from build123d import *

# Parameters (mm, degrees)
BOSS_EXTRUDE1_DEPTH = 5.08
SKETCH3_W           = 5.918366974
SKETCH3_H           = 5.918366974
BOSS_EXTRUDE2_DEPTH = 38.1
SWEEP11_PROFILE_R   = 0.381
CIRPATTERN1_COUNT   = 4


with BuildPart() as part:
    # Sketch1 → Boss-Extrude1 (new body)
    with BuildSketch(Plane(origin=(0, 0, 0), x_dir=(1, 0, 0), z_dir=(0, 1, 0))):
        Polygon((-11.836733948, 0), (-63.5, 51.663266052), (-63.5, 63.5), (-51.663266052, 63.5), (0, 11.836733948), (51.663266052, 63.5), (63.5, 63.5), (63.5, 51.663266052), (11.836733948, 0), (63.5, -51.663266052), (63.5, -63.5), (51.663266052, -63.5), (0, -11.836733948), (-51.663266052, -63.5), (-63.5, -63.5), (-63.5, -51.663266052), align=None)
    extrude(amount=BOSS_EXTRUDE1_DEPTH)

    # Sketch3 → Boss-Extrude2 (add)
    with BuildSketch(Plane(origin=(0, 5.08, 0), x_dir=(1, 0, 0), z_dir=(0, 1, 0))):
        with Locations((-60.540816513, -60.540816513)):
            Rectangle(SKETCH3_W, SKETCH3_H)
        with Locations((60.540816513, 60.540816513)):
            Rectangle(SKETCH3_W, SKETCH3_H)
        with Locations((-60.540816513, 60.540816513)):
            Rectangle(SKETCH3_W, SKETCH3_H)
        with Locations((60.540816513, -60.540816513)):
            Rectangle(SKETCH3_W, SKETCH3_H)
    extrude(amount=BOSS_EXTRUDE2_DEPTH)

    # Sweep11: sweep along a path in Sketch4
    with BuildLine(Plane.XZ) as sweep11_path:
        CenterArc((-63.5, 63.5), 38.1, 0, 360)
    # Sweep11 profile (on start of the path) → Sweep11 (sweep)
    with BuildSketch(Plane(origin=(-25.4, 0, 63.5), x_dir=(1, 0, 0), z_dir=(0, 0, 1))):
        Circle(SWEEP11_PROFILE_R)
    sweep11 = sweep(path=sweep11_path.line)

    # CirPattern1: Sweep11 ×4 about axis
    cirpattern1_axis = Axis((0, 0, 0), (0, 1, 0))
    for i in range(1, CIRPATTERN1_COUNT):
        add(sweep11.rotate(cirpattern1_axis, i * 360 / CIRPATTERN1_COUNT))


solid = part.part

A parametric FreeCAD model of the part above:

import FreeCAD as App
import Part
import Sketcher

V = App.Vector
Q = App.Units.Quantity


def add_polygon(sketch, points):
    """Adds a closed chain of lines whose ends are joined by coincident constraints."""
    first, n = sketch.GeometryCount, len(points)
    for a, b in zip(points, points[1:] + points[:1]):
        sketch.addGeometry(Part.LineSegment(App.Vector(*a, 0), App.Vector(*b, 0)), False)
    for i in range(n):
        sketch.addConstraint(Sketcher.Constraint("Coincident", first + i, 2, first + (i + 1) % n, 1))

doc = App.newDocument("Part")
body = doc.addObject("PartDesign::Body", "Body")

sketch1 = doc.addObject("Sketcher::SketchObject", "Sketch")
body.addObject(sketch1)
sketch1.AttachmentSupport = (doc.XZ_Plane, [""])
sketch1.MapMode = "FlatFace"
add_polygon(sketch1, [(-64, -52), (-12, 0), (-64, 52), (-64, 64), (-52, 64), (0, 12), (52, 64), (64, 64), (64, 52), (12, 0), (64, -52), (64, -64), (52, -64), (0, -12), (-52, -64), (-64, -64)])
sketch1.addConstraint([
    Sketcher.Constraint("Vertical", 2),
    Sketcher.Constraint("Horizontal", 3),
    Sketcher.Constraint("Horizontal", 6),
    Sketcher.Constraint("Vertical", 7),
    Sketcher.Constraint("Vertical", 10),
    Sketcher.Constraint("Horizontal", 11),
    Sketcher.Constraint("Horizontal", 14),
    Sketcher.Constraint("Vertical", 15),
    Sketcher.Constraint("Symmetric", 0, 2, 8, 2, -1, 1),
    Sketcher.Constraint("Symmetric", 1, 2, 9, 2, -1, 1),
    Sketcher.Constraint("Symmetric", 3, 2, 11, 2, -1, 1),
    Sketcher.Constraint("Symmetric", 4, 2, 12, 2, -1, 1),
    Sketcher.Constraint("Symmetric", 5, 2, 13, 2, -1, 1),
    Sketcher.Constraint("Symmetric", 7, 2, 15, 2, -1, 1),
    Sketcher.Constraint("Symmetric", 3, 2, 5, 2, -2),
    Sketcher.Constraint("Symmetric", 1, 2, 7, 2, -2),
    Sketcher.Constraint("PointOnObject", 0, 2, -1),
    Sketcher.Constraint("PointOnObject", 4, 2, -2),
    Sketcher.Constraint("Perpendicular", 0, 1),
    Sketcher.Constraint("Parallel", 1, 4),
    Sketcher.Constraint("Equal", 14, 2),
    Sketcher.Constraint("Equal", 1, 4),
    Sketcher.Constraint("DistanceX", 2, 2, 6, 2, Q("5 in")),
    Sketcher.Constraint("Distance", 0, Q("73.062892 mm")),
])
pad1 = doc.addObject("PartDesign::Pad", "Pad")
body.addObject(pad1)
pad1.Profile = sketch1
pad1.Length = Q("0.2 in")
pad1.Reversed = True

sketch2 = doc.addObject("Sketcher::SketchObject", "Sketch001")
body.addObject(sketch2)
sketch2.AttachmentSupport = (doc.XZ_Plane, [""])
sketch2.MapMode = "FlatFace"
sketch2.AttachmentOffset = App.Placement(V(0, 0, -0.2 * 25.4), App.Rotation())
add_polygon(sketch2, [(-64, 58), (-64, 64), (-58, 64), (-58, 58)])
add_polygon(sketch2, [(58, -64), (58, -58), (64, -58), (64, -64)])
add_polygon(sketch2, [(-64, -64), (-64, -58), (-58, -58), (-58, -64)])
add_polygon(sketch2, [(58, 58), (58, 64), (64, 64), (64, 58)])
sketch2.addConstraint([
    Sketcher.Constraint("Vertical", 0),
    Sketcher.Constraint("Horizontal", 1),
    Sketcher.Constraint("Vertical", 2),
    Sketcher.Constraint("Horizontal", 3),
    Sketcher.Constraint("Vertical", 4),
    Sketcher.Constraint("Horizontal", 5),
    Sketcher.Constraint("Vertical", 6),
    Sketcher.Constraint("Horizontal", 7),
    Sketcher.Constraint("Vertical", 8),
    Sketcher.Constraint("Horizontal", 9),
    Sketcher.Constraint("Vertical", 10),
    Sketcher.Constraint("Horizontal", 11),
    Sketcher.Constraint("Vertical", 12),
    Sketcher.Constraint("Horizontal", 13),
    Sketcher.Constraint("Vertical", 14),
    Sketcher.Constraint("Horizontal", 15),
    Sketcher.Constraint("Symmetric", 2, 2, 4, 2, -1, 1),
    Sketcher.Constraint("Symmetric", 0, 2, 6, 2, -1, 1),
    Sketcher.Constraint("Symmetric", 10, 2, 12, 2, -1, 1),
    Sketcher.Constraint("Symmetric", 8, 2, 14, 2, -1, 1),
    Sketcher.Constraint("Symmetric", 5, 2, 8, 2, -2),
    Sketcher.Constraint("Symmetric", 7, 2, 10, 2, -2),
    Sketcher.Constraint("Equal", 15, 0),
    Sketcher.Constraint("DistanceX", 3, 2, 5, 2, Q("5 in")),
    Sketcher.Constraint("DistanceY", 6, 2, 1, 2, Q("5 in")),
    Sketcher.Constraint("DistanceX", 1, 1, 1, 2, Q("5.918367 mm")),
])
pad2 = doc.addObject("PartDesign::Pad", "Pad001")
body.addObject(pad2)
pad2.Profile = sketch2
pad2.Length = Q("1.5 in")
pad2.Reversed = True

sketch3 = doc.addObject("Sketcher::SketchObject", "Sketch002")
body.addObject(sketch3)
sketch3.AttachmentSupport = (doc.XY_Plane, [""])
sketch3.MapMode = "FlatFace"
sketch3.AttachmentOffset = App.Placement(V(0, 0, 2.5 * 25.4), App.Rotation())
sketch3.addGeometry(Part.Circle(V(-25.4, 0, 0), V(0, 0, 1), 0.38), False)
sketch3.addConstraint([
    Sketcher.Constraint("PointOnObject", 0, 3, -1),
    Sketcher.Constraint("Diameter", 0, Q("0.03 in")),
    Sketcher.Constraint("DistanceX", 0, 3, -1, 1, Q("1 in")),
])

sketch4 = doc.addObject("Sketcher::SketchObject", "Sketch003")
body.addObject(sketch4)
sketch4.AttachmentSupport = (doc.XZ_Plane, [""])
sketch4.MapMode = "FlatFace"
sketch4.addGeometry(Part.Circle(V(-64, 64, 0), V(0, 0, 1), 38), False)
sketch4.addConstraint([
    Sketcher.Constraint("Diameter", 0, Q("3 in")),
    Sketcher.Constraint("DistanceX", 0, 3, -1, 1, Q("2.5 in")),
    Sketcher.Constraint("DistanceY", -1, 1, 0, 3, Q("2.5 in")),
])
doc.recompute()

additivepipe = doc.addObject("PartDesign::AdditivePipe", "AdditivePipe")
body.addObject(additivepipe)
additivepipe.Profile = sketch3
additivepipe.Spine = (sketch4, ["Edge1"])
doc.recompute()

polarpattern = doc.addObject("PartDesign::PolarPattern", "PolarPattern")
body.addObject(polarpattern)
polarpattern.Originals = [additivepipe]
polarpattern.Axis = (doc.Y_Axis, [""])
polarpattern.Angle = 360
polarpattern.Occurrences = 4
body.Tip = polarpattern

doc.recompute()
